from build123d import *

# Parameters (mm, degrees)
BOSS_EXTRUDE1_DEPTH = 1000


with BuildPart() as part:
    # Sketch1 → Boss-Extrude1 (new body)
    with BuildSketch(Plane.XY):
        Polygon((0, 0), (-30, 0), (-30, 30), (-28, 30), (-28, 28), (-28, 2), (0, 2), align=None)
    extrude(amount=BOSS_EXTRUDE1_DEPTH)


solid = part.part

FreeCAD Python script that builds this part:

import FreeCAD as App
import Part
import Sketcher

doc = App.newDocument("Part")
body = doc.addObject("PartDesign::Body", "Body")

sketch1 = body.newObject("Sketcher::SketchObject", "Sketch")
sketch1.AttachmentSupport = (doc.getObject("XY_Plane"), [""])
sketch1.MapMode = "FlatFace"
sketch1.addGeometry([
    Part.LineSegment(App.Vector(-30, 0, 0), App.Vector(0, 0, 0)),
    Part.LineSegment(App.Vector(0, 0, 0), App.Vector(0, 2, 0)),
    Part.LineSegment(App.Vector(0, 2, 0), App.Vector(-28, 2, 0)),
    Part.LineSegment(App.Vector(-28, 2, 0), App.Vector(-28, 30, 0)),
    Part.LineSegment(App.Vector(-28, 30, 0), App.Vector(-30, 30, 0)),
    Part.LineSegment(App.Vector(-30, 30, 0), App.Vector(-30, 0, 0)),
], False)
sketch1.addConstraint([
    Sketcher.Constraint("Coincident", 0, 2, 1, 1),
    Sketcher.Constraint("Coincident", 1, 2, 2, 1),
    Sketcher.Constraint("Coincident", 2, 2, 3, 1),
    Sketcher.Constraint("Coincident", 3, 2, 4, 1),
    Sketcher.Constraint("Coincident", 4, 2, 5, 1),
    Sketcher.Constraint("Coincident", 5, 2, 0, 1),
    Sketcher.Constraint("Horizontal", 0),
    Sketcher.Constraint("Vertical", 1),
    Sketcher.Constraint("Horizontal", 2),
    Sketcher.Constraint("Vertical", 3),
    Sketcher.Constraint("Horizontal", 4),
    Sketcher.Constraint("Vertical", 5),
    Sketcher.Constraint("Coincident", 0, 2, -1, 1),
    Sketcher.Constraint("Equal", 4, 1),
    Sketcher.Constraint("Equal", 2, 3),
    Sketcher.Constraint("DistanceX", 0, 1, 0, 2, 30.0),
    Sketcher.Constraint("DistanceX", 2, 2, 2, 1, 28.0),
])
pad1 = body.newObject("PartDesign::Pad", "Pad")
pad1.Profile = sketch1
pad1.Length = 1000

doc.recompute()
